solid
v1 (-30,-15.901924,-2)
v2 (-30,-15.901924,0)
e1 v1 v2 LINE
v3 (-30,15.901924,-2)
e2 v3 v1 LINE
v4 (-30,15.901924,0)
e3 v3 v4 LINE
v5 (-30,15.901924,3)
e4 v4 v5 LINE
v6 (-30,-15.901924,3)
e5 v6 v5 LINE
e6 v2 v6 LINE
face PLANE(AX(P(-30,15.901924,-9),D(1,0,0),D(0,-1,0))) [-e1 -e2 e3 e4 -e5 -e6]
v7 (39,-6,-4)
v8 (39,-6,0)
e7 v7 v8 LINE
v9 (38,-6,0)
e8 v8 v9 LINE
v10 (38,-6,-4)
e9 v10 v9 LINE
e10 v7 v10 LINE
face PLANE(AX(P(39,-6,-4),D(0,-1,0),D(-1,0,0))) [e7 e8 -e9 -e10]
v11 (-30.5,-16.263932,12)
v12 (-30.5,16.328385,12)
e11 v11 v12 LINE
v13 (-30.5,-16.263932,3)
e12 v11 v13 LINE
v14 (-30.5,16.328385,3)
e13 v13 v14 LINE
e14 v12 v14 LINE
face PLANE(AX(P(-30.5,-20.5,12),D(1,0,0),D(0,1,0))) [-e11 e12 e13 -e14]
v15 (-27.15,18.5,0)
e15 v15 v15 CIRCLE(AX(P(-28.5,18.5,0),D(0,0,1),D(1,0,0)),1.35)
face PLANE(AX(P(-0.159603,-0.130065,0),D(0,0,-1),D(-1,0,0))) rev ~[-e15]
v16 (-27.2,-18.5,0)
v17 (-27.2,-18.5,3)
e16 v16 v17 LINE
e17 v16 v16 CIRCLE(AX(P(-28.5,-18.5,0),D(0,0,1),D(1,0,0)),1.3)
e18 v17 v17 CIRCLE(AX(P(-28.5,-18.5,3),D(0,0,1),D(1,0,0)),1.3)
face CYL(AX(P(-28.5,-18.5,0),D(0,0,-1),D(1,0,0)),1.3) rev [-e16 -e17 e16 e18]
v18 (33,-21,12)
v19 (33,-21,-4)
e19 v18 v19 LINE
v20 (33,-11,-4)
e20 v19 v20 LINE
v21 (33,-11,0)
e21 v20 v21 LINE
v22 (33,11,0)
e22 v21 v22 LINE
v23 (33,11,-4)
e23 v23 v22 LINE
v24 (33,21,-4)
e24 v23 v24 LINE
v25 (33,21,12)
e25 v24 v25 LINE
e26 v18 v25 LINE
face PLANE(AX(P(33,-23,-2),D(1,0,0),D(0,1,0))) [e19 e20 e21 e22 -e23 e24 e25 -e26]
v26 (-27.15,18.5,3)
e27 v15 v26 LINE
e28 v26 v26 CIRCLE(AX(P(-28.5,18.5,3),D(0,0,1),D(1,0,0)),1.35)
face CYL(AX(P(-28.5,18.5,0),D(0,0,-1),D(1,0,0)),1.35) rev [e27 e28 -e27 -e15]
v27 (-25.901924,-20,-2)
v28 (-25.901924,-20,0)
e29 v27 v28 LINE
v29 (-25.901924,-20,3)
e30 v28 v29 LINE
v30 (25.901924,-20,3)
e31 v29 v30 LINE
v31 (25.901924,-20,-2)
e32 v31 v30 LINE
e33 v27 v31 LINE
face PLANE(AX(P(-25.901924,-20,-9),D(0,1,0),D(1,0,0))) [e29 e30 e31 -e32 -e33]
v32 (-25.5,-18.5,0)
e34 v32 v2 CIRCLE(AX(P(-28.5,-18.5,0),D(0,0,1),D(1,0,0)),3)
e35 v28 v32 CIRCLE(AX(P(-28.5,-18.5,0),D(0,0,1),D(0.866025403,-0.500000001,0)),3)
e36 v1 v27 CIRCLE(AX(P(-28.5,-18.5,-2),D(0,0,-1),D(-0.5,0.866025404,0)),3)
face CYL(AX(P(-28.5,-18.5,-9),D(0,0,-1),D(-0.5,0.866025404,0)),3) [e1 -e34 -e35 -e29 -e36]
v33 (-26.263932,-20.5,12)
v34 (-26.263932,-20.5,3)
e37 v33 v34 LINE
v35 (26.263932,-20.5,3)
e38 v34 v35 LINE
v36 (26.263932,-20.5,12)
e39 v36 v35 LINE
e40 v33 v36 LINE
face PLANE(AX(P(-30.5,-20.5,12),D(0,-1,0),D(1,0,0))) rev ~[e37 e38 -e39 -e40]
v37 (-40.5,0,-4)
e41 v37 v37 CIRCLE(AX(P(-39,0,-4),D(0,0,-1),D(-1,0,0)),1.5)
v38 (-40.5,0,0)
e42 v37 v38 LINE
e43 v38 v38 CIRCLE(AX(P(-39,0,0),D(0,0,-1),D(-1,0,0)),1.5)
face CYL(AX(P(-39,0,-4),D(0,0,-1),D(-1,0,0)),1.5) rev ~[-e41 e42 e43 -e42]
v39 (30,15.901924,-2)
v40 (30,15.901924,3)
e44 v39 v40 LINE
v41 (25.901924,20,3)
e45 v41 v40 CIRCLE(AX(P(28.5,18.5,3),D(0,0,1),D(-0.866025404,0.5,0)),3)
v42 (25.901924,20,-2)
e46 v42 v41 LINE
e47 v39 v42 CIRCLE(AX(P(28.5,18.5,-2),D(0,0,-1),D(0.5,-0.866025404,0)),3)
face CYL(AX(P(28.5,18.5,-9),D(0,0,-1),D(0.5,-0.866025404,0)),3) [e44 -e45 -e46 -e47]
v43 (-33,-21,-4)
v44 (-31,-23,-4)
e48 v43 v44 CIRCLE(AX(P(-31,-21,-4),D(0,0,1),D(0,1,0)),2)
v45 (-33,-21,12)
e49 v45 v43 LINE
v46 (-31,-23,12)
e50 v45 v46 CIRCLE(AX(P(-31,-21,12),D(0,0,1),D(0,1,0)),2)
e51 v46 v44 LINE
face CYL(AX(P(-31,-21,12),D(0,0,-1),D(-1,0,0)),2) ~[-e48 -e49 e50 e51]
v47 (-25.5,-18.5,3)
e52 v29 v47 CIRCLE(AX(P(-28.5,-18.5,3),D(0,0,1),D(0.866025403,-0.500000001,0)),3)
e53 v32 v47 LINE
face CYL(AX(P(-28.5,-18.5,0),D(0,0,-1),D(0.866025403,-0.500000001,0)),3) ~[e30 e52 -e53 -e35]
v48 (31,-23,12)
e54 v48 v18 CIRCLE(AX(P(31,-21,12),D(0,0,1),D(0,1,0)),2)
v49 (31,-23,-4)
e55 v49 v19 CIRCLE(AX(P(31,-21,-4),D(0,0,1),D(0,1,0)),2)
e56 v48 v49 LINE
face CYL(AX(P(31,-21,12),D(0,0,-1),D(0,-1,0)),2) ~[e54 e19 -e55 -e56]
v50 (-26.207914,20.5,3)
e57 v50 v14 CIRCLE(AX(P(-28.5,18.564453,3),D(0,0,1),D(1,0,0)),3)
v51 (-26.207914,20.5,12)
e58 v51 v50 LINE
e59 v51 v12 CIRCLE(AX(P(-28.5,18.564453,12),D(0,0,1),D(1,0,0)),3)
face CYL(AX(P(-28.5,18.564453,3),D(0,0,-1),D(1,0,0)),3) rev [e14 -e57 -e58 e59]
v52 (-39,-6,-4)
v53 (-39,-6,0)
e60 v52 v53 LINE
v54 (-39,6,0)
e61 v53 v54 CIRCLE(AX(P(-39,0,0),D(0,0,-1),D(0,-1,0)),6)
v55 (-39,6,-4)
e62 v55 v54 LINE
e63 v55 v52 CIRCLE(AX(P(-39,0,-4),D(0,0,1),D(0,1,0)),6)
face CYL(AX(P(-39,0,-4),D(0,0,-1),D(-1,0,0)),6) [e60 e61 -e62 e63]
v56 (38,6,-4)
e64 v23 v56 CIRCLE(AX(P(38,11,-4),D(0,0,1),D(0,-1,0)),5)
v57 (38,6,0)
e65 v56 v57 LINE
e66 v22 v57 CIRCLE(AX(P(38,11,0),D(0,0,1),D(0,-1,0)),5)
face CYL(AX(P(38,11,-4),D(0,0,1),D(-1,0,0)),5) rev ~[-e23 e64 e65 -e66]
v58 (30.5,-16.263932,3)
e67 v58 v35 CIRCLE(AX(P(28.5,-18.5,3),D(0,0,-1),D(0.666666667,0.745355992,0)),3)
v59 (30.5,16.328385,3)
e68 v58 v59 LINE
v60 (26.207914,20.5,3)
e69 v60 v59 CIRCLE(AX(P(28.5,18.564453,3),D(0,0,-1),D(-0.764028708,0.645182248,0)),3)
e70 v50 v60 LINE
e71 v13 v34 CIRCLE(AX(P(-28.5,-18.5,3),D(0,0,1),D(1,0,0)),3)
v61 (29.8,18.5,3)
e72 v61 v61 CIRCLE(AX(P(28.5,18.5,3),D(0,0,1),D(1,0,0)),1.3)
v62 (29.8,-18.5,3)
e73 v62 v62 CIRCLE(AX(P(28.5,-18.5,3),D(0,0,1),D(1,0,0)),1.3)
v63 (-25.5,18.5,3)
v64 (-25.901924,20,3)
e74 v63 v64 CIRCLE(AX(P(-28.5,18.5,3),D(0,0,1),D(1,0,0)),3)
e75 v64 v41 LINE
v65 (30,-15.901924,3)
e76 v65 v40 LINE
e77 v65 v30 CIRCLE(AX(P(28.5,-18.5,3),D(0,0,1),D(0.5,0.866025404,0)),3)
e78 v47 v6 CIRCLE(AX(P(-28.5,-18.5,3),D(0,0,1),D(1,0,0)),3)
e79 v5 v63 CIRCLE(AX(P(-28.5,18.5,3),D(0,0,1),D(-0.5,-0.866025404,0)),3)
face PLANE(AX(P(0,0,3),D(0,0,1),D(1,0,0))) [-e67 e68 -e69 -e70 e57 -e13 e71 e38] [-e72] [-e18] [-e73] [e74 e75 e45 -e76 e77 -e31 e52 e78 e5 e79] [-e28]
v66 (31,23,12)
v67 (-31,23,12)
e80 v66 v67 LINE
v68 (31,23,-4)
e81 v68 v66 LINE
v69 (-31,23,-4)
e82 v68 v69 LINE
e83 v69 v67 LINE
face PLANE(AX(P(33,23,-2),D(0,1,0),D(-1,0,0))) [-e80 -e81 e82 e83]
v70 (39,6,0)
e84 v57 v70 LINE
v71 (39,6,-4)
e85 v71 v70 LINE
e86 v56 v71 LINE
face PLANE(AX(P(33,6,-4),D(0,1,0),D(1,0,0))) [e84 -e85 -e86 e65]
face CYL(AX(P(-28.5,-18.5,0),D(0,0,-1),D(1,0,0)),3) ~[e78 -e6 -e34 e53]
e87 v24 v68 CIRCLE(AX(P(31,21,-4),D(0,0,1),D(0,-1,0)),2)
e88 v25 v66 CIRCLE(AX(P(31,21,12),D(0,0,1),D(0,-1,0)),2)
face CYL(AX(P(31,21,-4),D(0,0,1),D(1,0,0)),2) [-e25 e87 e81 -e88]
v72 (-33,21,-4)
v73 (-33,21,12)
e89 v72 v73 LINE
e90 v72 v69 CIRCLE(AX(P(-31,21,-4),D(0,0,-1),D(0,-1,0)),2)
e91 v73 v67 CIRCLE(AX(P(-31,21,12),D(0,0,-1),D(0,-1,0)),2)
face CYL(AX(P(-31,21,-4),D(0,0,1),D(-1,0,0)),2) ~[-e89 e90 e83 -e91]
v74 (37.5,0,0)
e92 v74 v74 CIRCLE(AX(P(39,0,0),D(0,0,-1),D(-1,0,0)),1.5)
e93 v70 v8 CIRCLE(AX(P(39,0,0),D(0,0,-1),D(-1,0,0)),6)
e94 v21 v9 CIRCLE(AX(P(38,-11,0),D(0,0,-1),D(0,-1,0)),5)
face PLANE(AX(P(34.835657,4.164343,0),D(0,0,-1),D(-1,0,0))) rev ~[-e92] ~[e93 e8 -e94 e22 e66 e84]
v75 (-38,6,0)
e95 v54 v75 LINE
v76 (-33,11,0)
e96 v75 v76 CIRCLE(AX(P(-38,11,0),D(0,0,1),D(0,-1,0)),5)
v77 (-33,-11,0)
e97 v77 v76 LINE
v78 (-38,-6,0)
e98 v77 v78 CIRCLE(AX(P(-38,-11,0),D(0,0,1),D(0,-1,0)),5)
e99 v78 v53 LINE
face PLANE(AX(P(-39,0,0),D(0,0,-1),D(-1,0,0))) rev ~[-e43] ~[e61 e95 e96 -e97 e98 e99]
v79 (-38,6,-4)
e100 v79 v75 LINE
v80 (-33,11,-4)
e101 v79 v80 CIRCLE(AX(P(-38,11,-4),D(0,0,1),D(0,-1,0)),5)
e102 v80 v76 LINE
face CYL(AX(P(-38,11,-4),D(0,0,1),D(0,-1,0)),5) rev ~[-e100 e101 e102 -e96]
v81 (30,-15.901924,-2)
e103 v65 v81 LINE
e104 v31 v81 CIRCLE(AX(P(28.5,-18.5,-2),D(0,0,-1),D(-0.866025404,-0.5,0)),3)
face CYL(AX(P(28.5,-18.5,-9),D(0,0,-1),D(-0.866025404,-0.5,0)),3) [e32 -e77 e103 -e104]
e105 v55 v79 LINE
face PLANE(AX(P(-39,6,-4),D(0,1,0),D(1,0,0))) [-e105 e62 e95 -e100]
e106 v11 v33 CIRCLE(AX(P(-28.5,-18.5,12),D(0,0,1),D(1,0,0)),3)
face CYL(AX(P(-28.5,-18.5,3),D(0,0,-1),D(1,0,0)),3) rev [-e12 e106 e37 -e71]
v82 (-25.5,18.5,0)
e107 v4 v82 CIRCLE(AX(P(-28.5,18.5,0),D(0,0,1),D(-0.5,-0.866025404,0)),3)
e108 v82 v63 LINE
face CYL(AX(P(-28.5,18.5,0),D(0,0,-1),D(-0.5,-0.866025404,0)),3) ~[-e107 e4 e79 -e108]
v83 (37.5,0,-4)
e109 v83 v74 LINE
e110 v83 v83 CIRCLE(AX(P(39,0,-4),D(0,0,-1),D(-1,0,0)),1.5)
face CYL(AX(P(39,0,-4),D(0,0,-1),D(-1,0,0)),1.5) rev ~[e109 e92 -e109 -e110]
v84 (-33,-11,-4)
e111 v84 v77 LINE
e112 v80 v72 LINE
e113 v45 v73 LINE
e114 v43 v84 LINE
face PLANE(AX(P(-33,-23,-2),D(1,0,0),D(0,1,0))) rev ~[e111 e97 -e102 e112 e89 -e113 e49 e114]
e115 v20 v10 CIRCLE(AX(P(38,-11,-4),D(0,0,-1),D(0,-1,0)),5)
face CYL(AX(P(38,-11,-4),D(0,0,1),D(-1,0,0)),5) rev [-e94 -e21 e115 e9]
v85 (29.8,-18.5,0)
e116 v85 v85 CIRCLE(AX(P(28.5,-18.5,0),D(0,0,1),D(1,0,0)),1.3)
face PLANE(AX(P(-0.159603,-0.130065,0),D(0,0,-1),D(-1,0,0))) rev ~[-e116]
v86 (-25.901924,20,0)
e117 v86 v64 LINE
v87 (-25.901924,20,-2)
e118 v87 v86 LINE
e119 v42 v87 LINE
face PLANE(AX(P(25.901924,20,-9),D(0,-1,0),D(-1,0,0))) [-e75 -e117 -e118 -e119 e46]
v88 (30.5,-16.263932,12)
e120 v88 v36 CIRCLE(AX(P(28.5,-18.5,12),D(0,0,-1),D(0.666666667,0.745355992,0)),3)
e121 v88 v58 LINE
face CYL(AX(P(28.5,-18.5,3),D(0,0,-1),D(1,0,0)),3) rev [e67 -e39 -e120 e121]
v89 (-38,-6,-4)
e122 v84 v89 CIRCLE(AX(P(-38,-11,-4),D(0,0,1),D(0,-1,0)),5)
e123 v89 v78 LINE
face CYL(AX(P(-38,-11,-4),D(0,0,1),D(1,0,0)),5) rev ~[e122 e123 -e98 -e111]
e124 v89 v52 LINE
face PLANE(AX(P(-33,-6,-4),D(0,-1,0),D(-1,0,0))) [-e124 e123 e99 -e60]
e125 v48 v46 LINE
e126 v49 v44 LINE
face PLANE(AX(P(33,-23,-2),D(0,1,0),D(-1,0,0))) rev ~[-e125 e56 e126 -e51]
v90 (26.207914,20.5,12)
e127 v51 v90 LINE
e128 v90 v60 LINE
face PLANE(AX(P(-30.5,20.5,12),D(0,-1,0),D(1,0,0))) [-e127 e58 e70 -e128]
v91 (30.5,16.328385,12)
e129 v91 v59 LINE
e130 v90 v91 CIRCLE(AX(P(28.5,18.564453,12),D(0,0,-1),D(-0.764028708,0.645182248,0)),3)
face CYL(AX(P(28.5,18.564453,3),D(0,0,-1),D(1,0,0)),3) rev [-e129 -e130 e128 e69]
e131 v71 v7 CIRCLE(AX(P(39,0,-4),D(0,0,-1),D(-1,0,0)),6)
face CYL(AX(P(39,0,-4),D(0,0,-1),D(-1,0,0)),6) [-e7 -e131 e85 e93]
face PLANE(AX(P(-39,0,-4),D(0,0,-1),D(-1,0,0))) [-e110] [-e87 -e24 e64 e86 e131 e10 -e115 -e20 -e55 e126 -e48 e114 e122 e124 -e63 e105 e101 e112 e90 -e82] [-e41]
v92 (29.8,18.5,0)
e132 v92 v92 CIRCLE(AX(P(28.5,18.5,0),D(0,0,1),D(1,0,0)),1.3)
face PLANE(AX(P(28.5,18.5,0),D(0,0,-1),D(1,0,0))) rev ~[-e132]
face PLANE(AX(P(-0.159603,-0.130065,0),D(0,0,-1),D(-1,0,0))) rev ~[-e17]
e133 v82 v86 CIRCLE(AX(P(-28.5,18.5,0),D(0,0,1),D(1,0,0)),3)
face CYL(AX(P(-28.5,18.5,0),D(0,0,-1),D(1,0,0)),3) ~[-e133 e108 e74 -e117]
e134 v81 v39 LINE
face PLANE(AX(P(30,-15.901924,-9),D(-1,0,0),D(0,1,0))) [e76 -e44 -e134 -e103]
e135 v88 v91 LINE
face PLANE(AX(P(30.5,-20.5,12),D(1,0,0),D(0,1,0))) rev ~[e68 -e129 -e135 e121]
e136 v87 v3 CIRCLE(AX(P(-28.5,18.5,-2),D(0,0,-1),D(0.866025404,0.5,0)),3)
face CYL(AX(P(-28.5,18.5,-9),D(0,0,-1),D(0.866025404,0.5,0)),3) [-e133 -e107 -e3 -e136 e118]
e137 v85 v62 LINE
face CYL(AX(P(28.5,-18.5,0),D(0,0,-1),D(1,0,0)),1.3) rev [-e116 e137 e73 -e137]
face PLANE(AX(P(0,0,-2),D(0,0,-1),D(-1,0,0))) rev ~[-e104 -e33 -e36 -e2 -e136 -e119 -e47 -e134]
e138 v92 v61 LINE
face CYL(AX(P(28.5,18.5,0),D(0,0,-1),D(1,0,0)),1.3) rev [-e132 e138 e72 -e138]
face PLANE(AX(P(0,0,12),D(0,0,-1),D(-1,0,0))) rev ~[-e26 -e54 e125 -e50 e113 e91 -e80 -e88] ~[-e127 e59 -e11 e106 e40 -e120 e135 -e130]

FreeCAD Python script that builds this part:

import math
import FreeCAD as App
import Part
import Sketcher
from FreeCAD import Vector
Q = App.Units.Quantity


def edges_at(feature, points):
    """Names of the edges that pass closest to the given points."""
    edges = feature.Shape.Edges
    near = lambda p: min(range(len(edges)), key=lambda i: edges[i].distToShape(Part.Vertex(*p))[0])
    return sorted({f"Edge{near(p) + 1}" for p in points})


def add_polygon(sketch, points):
    """Adds a closed chain of lines whose ends are joined by coincident constraints."""
    first, n = sketch.GeometryCount, len(points)
    for a, b in zip(points, points[1:] + points[:1]):
        sketch.addGeometry(Part.LineSegment(App.Vector(*a, 0), App.Vector(*b, 0)), False)
    for i in range(n):
        sketch.addConstraint(Sketcher.Constraint("Coincident", first + i, 2, first + (i + 1) % n, 1))

doc = App.newDocument("Part")
body = doc.addObject("PartDesign::Body", "Body")
body.AllowCompound = True

sketch1 = body.newObject("Sketcher::SketchObject", "Sketch")
sketch1.AttachmentSupport = (doc.getObject("XY_Plane"), [""])
sketch1.MapMode = "FlatFace"
sketch1.addGeometry([
    Part.LineSegment(Vector(-25.901924, 20, 0), Vector(-30, 20, 0)),
    Part.LineSegment(Vector(-30, 20, 0), Vector(-30, 15.901924, 0)),
    Part.ArcOfCircle(Part.Circle(Vector(-28.5, 18.5, 0), Vector(0, 0, 1), 3), math.radians(-120), math.radians(0)),
    Part.ArcOfCircle(Part.Circle(Vector(-28.5, 18.5, 0), Vector(0, 0, 1), 3), math.radians(0), math.radians(30)),
    Part.Circle(Vector(-28.5, 18.5, 0), Vector(0, 0, 1), 1.35),
    Part.ArcOfCircle(Part.Circle(Vector(28.5, 18.5, 0), Vector(0, 0, 1), 3), math.radians(150), math.radians(300)),
    Part.LineSegment(Vector(30, 15.901924, 0), Vector(30, 20, 0)),
    Part.LineSegment(Vector(30, 20, 0), Vector(25.901924, 20, 0)),
    Part.Circle(Vector(28.5, 18.5, 0), Vector(0, 0, 1), 1.3),
    Part.ArcOfCircle(Part.Circle(Vector(28.5, -18.5, 0), Vector(0, 0, 1), 3), math.radians(60), math.radians(210)),
    Part.LineSegment(Vector(25.901924, -20, 0), Vector(30, -20, 0)),
    Part.LineSegment(Vector(30, -20, 0), Vector(30, -15.901924, 0)),
    Part.Circle(Vector(28.5, -18.5, 0), Vector(0, 0, 1), 1.3),
    Part.ArcOfCircle(Part.Circle(Vector(-28.5, -18.5, 0), Vector(0, 0, 1), 3), math.radians(0), math.radians(120)),
    Part.LineSegment(Vector(-30, -15.901924, 0), Vector(-30, -20, 0)),
    Part.LineSegment(Vector(-30, -20, 0), Vector(-25.901924, -20, 0)),
    Part.ArcOfCircle(Part.Circle(Vector(-28.5, -18.5, 0), Vector(0, 0, 1), 3), math.radians(-30), math.radians(0)),
    Part.Circle(Vector(-28.5, -18.5, 0), Vector(0, 0, 1), 1.3),
], False)
sketch1.addConstraint([
    Sketcher.Constraint("Coincident", 0, 2, 1, 1),
    Sketcher.Constraint("Coincident", 1, 2, 2, 1),
    Sketcher.Constraint("Tangent", 2, 2, 3, 1),
    Sketcher.Constraint("Coincident", 3, 2, 0, 1),
    Sketcher.Constraint("Coincident", 5, 2, 6, 1),
    Sketcher.Constraint("Coincident", 6, 2, 7, 1),
    Sketcher.Constraint("Coincident", 7, 2, 5, 1),
    Sketcher.Constraint("Coincident", 9, 2, 10, 1),
    Sketcher.Constraint("Coincident", 10, 2, 11, 1),
    Sketcher.Constraint("Coincident", 11, 2, 9, 1),
    Sketcher.Constraint("Coincident", 13, 2, 14, 1),
    Sketcher.Constraint("Coincident", 14, 2, 15, 1),
    Sketcher.Constraint("Coincident", 15, 2, 16, 1),
    Sketcher.Constraint("Tangent", 16, 2, 13, 1),
    Sketcher.Constraint("Horizontal", 0),
    Sketcher.Constraint("Vertical", 1),
    Sketcher.Constraint("Vertical", 6),
    Sketcher.Constraint("Horizontal", 7),
    Sketcher.Constraint("Horizontal", 10),
    Sketcher.Constraint("Vertical", 11),
    Sketcher.Constraint("Vertical", 14),
    Sketcher.Constraint("Horizontal", 15),
    Sketcher.Constraint("Coincident", 4, 3, 2, 3),
    Sketcher.Constraint("Coincident", 8, 3, 5, 3),
    Sketcher.Constraint("Coincident", 12, 3, 9, 3),
    Sketcher.Constraint("Coincident", 17, 3, 13, 3),
    Sketcher.Constraint("Equal", 2, 3),
    Sketcher.Constraint("Equal", 3, 5),
    Sketcher.Constraint("Equal", 5, 9),
    Sketcher.Constraint("Equal", 8, 12),
    Sketcher.Constraint("Equal", 9, 13),
    Sketcher.Constraint("Equal", 13, 16),
    Sketcher.Constraint("Equal", 12, 17),
    Sketcher.Constraint("Symmetric", 2, 3, 9, 3, -1, 1),
    Sketcher.Constraint("Symmetric", 5, 3, 13, 3, -1, 1),
    Sketcher.Constraint("Symmetric", 0, 2, 10, 2, -1, 1),
    Sketcher.Constraint("Symmetric", 6, 2, 14, 2, -1, 1),
    Sketcher.Constraint("Symmetric", 2, 3, 5, 3, -2),
    Sketcher.Constraint("Symmetric", 0, 2, 6, 2, -2),
    Sketcher.Constraint("Horizontal", 8, 3, 2, 2),
    Sketcher.Constraint("Horizontal", 17, 3, 16, 2),
    Sketcher.Constraint("Equal", 15, 1),
    Sketcher.Constraint("Radius", 2, Q("3 mm")),
    Sketcher.Constraint("Diameter", 4, Q("2.7 mm")),
    Sketcher.Constraint("Diameter", 8, Q("2.6 mm")),
    Sketcher.Constraint("DistanceX", 0, 2, -1, 1, Q("30 mm")),
    Sketcher.Constraint("DistanceY", -1, 1, 0, 2, Q("20 mm")),
    Sketcher.Constraint("DistanceX", 3, 3, 5, 3, Q("57 mm")),
])
pad1 = body.newObject("PartDesign::Pad", "Pad")
pad1.Profile = sketch1
pad1.Length = 3

sketch2 = body.newObject("Sketcher::SketchObject", "Sketch001")
sketch2.AttachmentSupport = (doc.getObject("XY_Plane"), [""])
sketch2.MapMode = "FlatFace"
sketch2.AttachmentOffset = App.Placement(Vector(0, 0, -2), App.Rotation())
add_polygon(sketch2, [(32, 22), (32, -22), (-32, -22), (-32, 22)])
sketch2.addConstraint([
    Sketcher.Constraint("Vertical", 0),
    Sketcher.Constraint("Horizontal", 1),
    Sketcher.Constraint("Vertical", 2),
    Sketcher.Constraint("Horizontal", 3),
    Sketcher.Constraint("Symmetric", 0, 2, 2, 2, -1, 1),
    Sketcher.Constraint("DistanceX", 1, 2, 1, 1, Q("64 mm")),
    Sketcher.Constraint("DistanceY", 0, 2, 0, 1, Q("44 mm")),
])
pad2 = body.newObject("PartDesign::Pad", "Pad001")
pad2.Profile = sketch2
pad2.Length = 2

sketch3 = body.newObject("Sketcher::SketchObject", "Sketch002")
sketch3.AttachmentSupport = (doc.getObject("XY_Plane"), [""])
sketch3.MapMode = "FlatFace"
add_polygon(sketch3, [(-32, 22), (-32, -22), (32, -22), (32, 22)])
add_polygon(sketch3, [(30, -20), (-30, -20), (-30, 20), (30, 20)])
sketch3.addConstraint([
    Sketcher.Constraint("Vertical", 0),
    Sketcher.Constraint("Horizontal", 1),
    Sketcher.Constraint("Vertical", 2),
    Sketcher.Constraint("Horizontal", 3),
    Sketcher.Constraint("Horizontal", 4),
    Sketcher.Constraint("Vertical", 5),
    Sketcher.Constraint("Horizontal", 6),
    Sketcher.Constraint("Vertical", 7),
    Sketcher.Constraint("Symmetric", 0, 2, 2, 2, -1, 1),
    Sketcher.Constraint("Symmetric", 4, 2, 6, 2, -1, 1),
    Sketcher.Constraint("DistanceX", 1, 1, 1, 2, Q("64 mm")),
    Sketcher.Constraint("DistanceX", 4, 2, 4, 1, Q("60 mm")),
    Sketcher.Constraint("DistanceY", 0, 2, 0, 1, Q("44 mm")),
    Sketcher.Constraint("DistanceY", 5, 1, 5, 2, Q("40 mm")),
])
pad3 = body.newObject("PartDesign::Pad", "Pad002")
pad3.Profile = sketch3
pad3.Length = 12

sketch4 = body.newObject("Sketcher::SketchObject", "Sketch003")
sketch4.AttachmentSupport = (doc.getObject("XY_Plane"), [""])
sketch4.MapMode = "FlatFace"
sketch4.AttachmentOffset = App.Placement(Vector(0, 0, 12), App.Rotation())
add_polygon(sketch4, [(-30.5, 20.5), (-30.5, -20.5), (30.5, -20.5), (30.5, 20.5)])
add_polygon(sketch4, [(30, -20), (-30, -20), (-30, 20), (30, 20)])
sketch4.addConstraint([
    Sketcher.Constraint("Vertical", 0),
    Sketcher.Constraint("Horizontal", 1),
    Sketcher.Constraint("Vertical", 2),
    Sketcher.Constraint("Horizontal", 3),
    Sketcher.Constraint("Horizontal", 4),
    Sketcher.Constraint("Vertical", 5),
    Sketcher.Constraint("Horizontal", 6),
    Sketcher.Constraint("Vertical", 7),
    Sketcher.Constraint("Symmetric", 0, 2, 2, 2, -1, 1),
    Sketcher.Constraint("Symmetric", 4, 2, 6, 2, -1, 1),
    Sketcher.Constraint("DistanceX", 1, 1, 1, 2, Q("61 mm")),
    Sketcher.Constraint("DistanceX", 4, 2, 4, 1, Q("60 mm")),
    Sketcher.Constraint("DistanceY", 0, 2, 0, 1, Q("41 mm")),
    Sketcher.Constraint("DistanceY", 5, 1, 5, 2, Q("40 mm")),
])
pocket1 = body.newObject("PartDesign::Pocket", "Pocket")
pocket1.Profile = sketch4
pocket1.Length = 9

sketch5 = body.newObject("Sketcher::SketchObject", "Sketch004")
sketch5.AttachmentSupport = (doc.getObject("XY_Plane"), [""])
sketch5.MapMode = "FlatFace"
sketch5.AttachmentOffset = App.Placement(Vector(0, 0, 3), App.Rotation())
sketch5.addGeometry([
    Part.Circle(Vector(28.5, -18.5, 0), Vector(0, 0, 1), 3),
    Part.Circle(Vector(-28.5, -18.5, 0), Vector(0, 0, 1), 3),
    Part.Circle(Vector(-28.5, 18.564453, 0), Vector(0, 0, 1), 3),
    Part.Circle(Vector(28.5, 18.564453, 0), Vector(0, 0, 1), 3),
], False)
sketch5.addConstraint([
    Sketcher.Constraint("Equal", 0, 1),
    Sketcher.Constraint("Equal", 1, 2),
    Sketcher.Constraint("Equal", 2, 3),
    Sketcher.Constraint("Symmetric", 0, 3, 1, 3, -2),
    Sketcher.Constraint("Symmetric", 2, 3, 3, 3, -2),
    Sketcher.Constraint("Vertical", 1, 3, 2, 3),
    Sketcher.Constraint("Diameter", 0, Q("6 mm")),
    Sketcher.Constraint("DistanceX", 1, 3, 0, 3, Q("57 mm")),
    Sketcher.Constraint("DistanceY", 0, 3, -1, 1, Q("18.5 mm")),
    Sketcher.Constraint("DistanceY", -1, 1, 2, 3, Q("18.564453 mm")),
])
pocket2 = body.newObject("PartDesign::Pocket", "Pocket001")
pocket2.Profile = sketch5
pocket2.Length = 9
pocket2.Reversed = True

sketch6 = body.newObject("Sketcher::SketchObject", "Sketch005")
sketch6.AttachmentSupport = (doc.getObject("XY_Plane"), [""])
sketch6.MapMode = "FlatFace"
sketch6.AttachmentOffset = App.Placement(Vector(0, 0, -9), App.Rotation())
sketch6.addGeometry([
    Part.LineSegment(Vector(30, -15.901924, 0), Vector(30, 15.901924, 0)),
    Part.ArcOfCircle(Part.Circle(Vector(28.5, 18.5, 0), Vector(0, 0, 1), 3), math.radians(150), math.radians(300)),
    Part.LineSegment(Vector(25.901924, 20, 0), Vector(-25.901924, 20, 0)),
    Part.ArcOfCircle(Part.Circle(Vector(-28.5, 18.5, 0), Vector(0, 0, 1), 3), math.radians(-120), math.radians(30)),
    Part.LineSegment(Vector(-30, 15.901924, 0), Vector(-30, -15.901924, 0)),
    Part.ArcOfCircle(Part.Circle(Vector(-28.5, -18.5, 0), Vector(0, 0, 1), 3), math.radians(-30), math.radians(120)),
    Part.LineSegment(Vector(-25.901924, -20, 0), Vector(25.901924, -20, 0)),
    Part.ArcOfCircle(Part.Circle(Vector(28.5, -18.5, 0), Vector(0, 0, 1), 3), math.radians(60), math.radians(210)),
], False)
sketch6.addConstraint([
    Sketcher.Constraint("Coincident", 0, 2, 1, 2),
    Sketcher.Constraint("Coincident", 1, 1, 2, 1),
    Sketcher.Constraint("Coincident", 2, 2, 3, 2),
    Sketcher.Constraint("Coincident", 3, 1, 4, 1),
    Sketcher.Constraint("Coincident", 4, 2, 5, 2),
    Sketcher.Constraint("Coincident", 5, 1, 6, 1),
    Sketcher.Constraint("Coincident", 6, 2, 7, 2),
    Sketcher.Constraint("Coincident", 7, 1, 0, 1),
    Sketcher.Constraint("Vertical", 0),
    Sketcher.Constraint("Horizontal", 2),
    Sketcher.Constraint("Vertical", 4),
    Sketcher.Constraint("Horizontal", 6),
    Sketcher.Constraint("Equal", 1, 3),
    Sketcher.Constraint("Equal", 3, 5),
    Sketcher.Constraint("Equal", 5, 7),
    Sketcher.Constraint("Symmetric", 1, 3, 5, 3, -1, 1),
    Sketcher.Constraint("Symmetric", 3, 3, 7, 3, -1, 1),
    Sketcher.Constraint("Symmetric", 1, 3, 3, 3, -2),
    Sketcher.Constraint("Horizontal", 0, 2, 3, 1),
    Sketcher.Constraint("Vertical", 2, 2, 5, 1),
    Sketcher.Constraint("Radius", 1, Q("3 mm")),
    Sketcher.Constraint("DistanceX", -1, 1, 0, 2, Q("30 mm")),
    Sketcher.Constraint("DistanceY", -1, 1, 1, 1, Q("20 mm")),
    Sketcher.Constraint("DistanceX", 3, 3, 1, 3, Q("57 mm")),
    Sketcher.Constraint("DistanceY", 5, 3, 3, 3, Q("37 mm")),
])
pocket3 = body.newObject("PartDesign::Pocket", "Pocket002")
pocket3.Profile = sketch6
pocket3.Length = 9
pocket3.Reversed = True

sketch7 = body.newObject("Sketcher::SketchObject", "Sketch006")
sketch7.AttachmentSupport = (doc.getObject("XY_Plane"), [""])
sketch7.MapMode = "FlatFace"
sketch7.AttachmentOffset = App.Placement(Vector(0, 0, -2), App.Rotation())
add_polygon(sketch7, [(33, 23), (33, -23), (-33, -23), (-33, 23)])
add_polygon(sketch7, [(-32, -22), (32, -22), (32, 22), (-32, 22)])
sketch7.addConstraint([
    Sketcher.Constraint("Vertical", 0),
    Sketcher.Constraint("Horizontal", 1),
    Sketcher.Constraint("Vertical", 2),
    Sketcher.Constraint("Horizontal", 3),
    Sketcher.Constraint("Horizontal", 4),
    Sketcher.Constraint("Vertical", 5),
    Sketcher.Constraint("Horizontal", 6),
    Sketcher.Constraint("Vertical", 7),
    Sketcher.Constraint("Symmetric", 0, 2, 2, 2, -1, 1),
    Sketcher.Constraint("Symmetric", 4, 2, 6, 2, -1, 1),
    Sketcher.Constraint("DistanceX", 1, 2, 1, 1, Q("66 mm")),
    Sketcher.Constraint("DistanceX", 4, 1, 4, 2, Q("64 mm")),
    Sketcher.Constraint("DistanceY", 0, 2, 0, 1, Q("46 mm")),
    Sketcher.Constraint("DistanceY", 5, 1, 5, 2, Q("44 mm")),
])
pad4 = body.newObject("PartDesign::Pad", "Pad003")
pad4.Profile = sketch7
pad4.Length = 14

sketch8 = body.newObject("Sketcher::SketchObject", "Sketch007")
sketch8.AttachmentSupport = (doc.getObject("XY_Plane"), [""])
sketch8.MapMode = "FlatFace"
sketch8.AttachmentOffset = App.Placement(Vector(0, 0, -2), App.Rotation())
add_polygon(sketch8, [(33, 23), (33, -23), (-33, -23), (-33, 23)])
sketch8.addConstraint([
    Sketcher.Constraint("Vertical", 0),
    Sketcher.Constraint("Horizontal", 1),
    Sketcher.Constraint("Vertical", 2),
    Sketcher.Constraint("Horizontal", 3),
    Sketcher.Constraint("Symmetric", 0, 2, 2, 2, -1, 1),
    Sketcher.Constraint("DistanceX", 1, 2, 1, 1, Q("66 mm")),
    Sketcher.Constraint("DistanceY", 0, 2, 0, 1, Q("46 mm")),
])
pad5 = body.newObject("PartDesign::Pad", "Pad004")
pad5.Profile = sketch8
pad5.Length = 2
pad5.Reversed = True

sketch9 = body.newObject("Sketcher::SketchObject", "Sketch008")
sketch9.AttachmentSupport = (doc.getObject("XY_Plane"), [""])
sketch9.MapMode = "FlatFace"
sketch9.AttachmentOffset = App.Placement(Vector(0, 0, -4), App.Rotation())
sketch9.addGeometry([
    Part.LineSegment(Vector(-39, 6, 0), Vector(-33, 6, 0)),
    Part.LineSegment(Vector(-33, 6, 0), Vector(-33, -6, 0)),
    Part.LineSegment(Vector(-33, -6, 0), Vector(-39, -6, 0)),
    Part.ArcOfCircle(Part.Circle(Vector(-39, 0, 0), Vector(0, 0, 1), 6), math.radians(90), math.radians(270)),
    Part.Circle(Vector(-39, 0, 0), Vector(0, 0, 1), 1.5),
    Part.ArcOfCircle(Part.Circle(Vector(39, 0, 0), Vector(0, 0, 1), 6), math.radians(-90), math.radians(90)),
    Part.LineSegment(Vector(39, -6, 0), Vector(33, -6, 0)),
    Part.LineSegment(Vector(33, -6, 0), Vector(33, 6, 0)),
    Part.LineSegment(Vector(33, 6, 0), Vector(39, 6, 0)),
    Part.Circle(Vector(39, 0, 0), Vector(0, 0, 1), 1.5),
], False)
sketch9.addConstraint([
    Sketcher.Constraint("Coincident", 0, 2, 1, 1),
    Sketcher.Constraint("Coincident", 1, 2, 2, 1),
    Sketcher.Constraint("Tangent", 2, 2, 3, 2),
    Sketcher.Constraint("Tangent", 3, 1, 0, 1),
    Sketcher.Constraint("Tangent", 5, 1, 6, 1),
    Sketcher.Constraint("Coincident", 6, 2, 7, 1),
    Sketcher.Constraint("Coincident", 7, 2, 8, 1),
    Sketcher.Constraint("Tangent", 8, 2, 5, 2),
    Sketcher.Constraint("Horizontal", 0),
    Sketcher.Constraint("Vertical", 1),
    Sketcher.Constraint("Horizontal", 2),
    Sketcher.Constraint("Horizontal", 6),
    Sketcher.Constraint("Vertical", 7),
    Sketcher.Constraint("Horizontal", 8),
    Sketcher.Constraint("Coincident", 4, 3, 3, 3),
    Sketcher.Constraint("Coincident", 9, 3, 5, 3),
    Sketcher.Constraint("Equal", 3, 5),
    Sketcher.Constraint("Equal", 4, 9),
    Sketcher.Constraint("Symmetric", 3, 3, 5, 3, -1, 1),
    Sketcher.Constraint("Symmetric", 1, 2, 6, 2, -2),
    Sketcher.Constraint("Diameter", 4, Q("3 mm")),
    Sketcher.Constraint("Radius", 3, Q("6 mm")),
    Sketcher.Constraint("DistanceX", 0, 1, 0, 2, Q("6 mm")),
    Sketcher.Constraint("DistanceX", 3, 3, -1, 1, Q("39 mm")),
])
pad6 = body.newObject("PartDesign::Pad", "Pad005")
pad6.Profile = sketch9
pad6.Length = 4
doc.recompute()

fillet = body.newObject("PartDesign::Fillet", "Fillet")
fillet.Base = (pad6, edges_at(pad6, [
    (-33, 6, -2),
    (-33, -6, -2),
    (33, -6, -2),
    (33, 6, -2),
]))
fillet.Radius = 5
doc.recompute()

fillet2 = body.newObject("PartDesign::Fillet", "Fillet001")
fillet2.Base = (fillet, edges_at(fillet, [
    (-33, 23, 4),
    (33, -23, 4),
    (-33, -23, 4),
    (33, 23, 4),
]))
fillet2.Radius = 2

doc.recompute()
